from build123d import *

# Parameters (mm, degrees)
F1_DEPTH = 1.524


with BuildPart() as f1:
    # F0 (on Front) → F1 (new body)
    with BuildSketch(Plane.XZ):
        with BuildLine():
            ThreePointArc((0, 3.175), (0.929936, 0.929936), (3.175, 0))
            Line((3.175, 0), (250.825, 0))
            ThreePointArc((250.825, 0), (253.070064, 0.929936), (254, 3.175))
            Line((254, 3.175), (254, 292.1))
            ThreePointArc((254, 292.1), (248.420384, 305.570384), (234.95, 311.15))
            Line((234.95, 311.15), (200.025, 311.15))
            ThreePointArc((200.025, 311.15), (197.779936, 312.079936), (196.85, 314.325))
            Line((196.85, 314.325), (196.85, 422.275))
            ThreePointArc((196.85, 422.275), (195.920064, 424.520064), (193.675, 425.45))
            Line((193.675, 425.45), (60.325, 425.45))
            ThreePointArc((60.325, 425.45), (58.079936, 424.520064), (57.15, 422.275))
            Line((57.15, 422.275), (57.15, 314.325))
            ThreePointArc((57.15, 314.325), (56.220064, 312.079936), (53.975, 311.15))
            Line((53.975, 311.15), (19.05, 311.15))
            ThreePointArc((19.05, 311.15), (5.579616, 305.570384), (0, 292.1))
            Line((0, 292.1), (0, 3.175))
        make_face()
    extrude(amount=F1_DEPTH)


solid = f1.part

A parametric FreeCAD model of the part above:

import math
import FreeCAD as App
import Part
import Sketcher
from FreeCAD import Vector
Q = App.Units.Quantity

doc = App.newDocument("Part")
body = doc.addObject("PartDesign::Body", "Body")

# Sketch on XZ plane
sketch1 = doc.addObject("Sketcher::SketchObject", "Sketch")
body.addObject(sketch1)
sketch1.AttachmentSupport = (doc.XZ_Plane, [""])
sketch1.MapMode = "FlatFace"
sketch1.addGeometry([
    Part.ArcOfCircle(Part.Circle(Vector(3.2, 3.2, 0), Vector(0, 0, 1), 3.2), math.radians(-180), math.radians(-90)),  # 0
    Part.LineSegment(Vector(3.2, 0, 0), Vector(250.8, 0, 0)),  # 1
    Part.ArcOfCircle(Part.Circle(Vector(250.8, 3.2, 0), Vector(0, 0, 1), 3.2), math.radians(-90), math.radians(0)),  # 2
    Part.LineSegment(Vector(254, 3.2, 0), Vector(254, 292.1, 0)),  # 3
    Part.ArcOfCircle(Part.Circle(Vector(234.9, 292.1, 0), Vector(0, 0, 1), 19.1), math.radians(0), math.radians(90)),  # 4
    Part.LineSegment(Vector(234.9, 311.1, 0), Vector(200, 311.1, 0)),  # 5
    Part.ArcOfCircle(Part.Circle(Vector(200, 314.3, 0), Vector(0, 0, 1), 3.2), math.radians(-180), math.radians(-90)),  # 6
    Part.LineSegment(Vector(196.8, 314.3, 0), Vector(196.8, 422.3, 0)),  # 7
    Part.ArcOfCircle(Part.Circle(Vector(193.7, 422.3, 0), Vector(0, 0, 1), 3.2), math.radians(0), math.radians(90)),  # 8
    Part.LineSegment(Vector(193.7, 425.4, 0), Vector(60.3, 425.4, 0)),  # 9
    Part.ArcOfCircle(Part.Circle(Vector(60.3, 422.3, 0), Vector(0, 0, 1), 3.2), math.radians(90), math.radians(180)),  # 10
    Part.LineSegment(Vector(57.1, 422.3, 0), Vector(57.1, 314.3, 0)),  # 11
    Part.ArcOfCircle(Part.Circle(Vector(54, 314.3, 0), Vector(0, 0, 1), 3.2), math.radians(-90), math.radians(0)),  # 12
    Part.LineSegment(Vector(54, 311.1, 0), Vector(19.1, 311.1, 0)),  # 13
    Part.ArcOfCircle(Part.Circle(Vector(19.1, 292.1, 0), Vector(0, 0, 1), 19.1), math.radians(90), math.radians(180)),  # 14
    Part.LineSegment(Vector(0, 292.1, 0), Vector(0, 3.2, 0)),  # 15
], False)
sketch1.addConstraint([
    Sketcher.Constraint("Tangent", 0, 2, 1, 1),
    Sketcher.Constraint("Tangent", 1, 2, 2, 1),
    Sketcher.Constraint("Tangent", 2, 2, 3, 1),
    Sketcher.Constraint("Tangent", 3, 2, 4, 1),
    Sketcher.Constraint("Tangent", 4, 2, 5, 1),
    Sketcher.Constraint("Tangent", 5, 2, 6, 2),
    Sketcher.Constraint("Tangent", 6, 1, 7, 1),
    Sketcher.Constraint("Tangent", 7, 2, 8, 1),
    Sketcher.Constraint("Tangent", 8, 2, 9, 1),
    Sketcher.Constraint("Tangent", 9, 2, 10, 1),
    Sketcher.Constraint("Tangent", 10, 2, 11, 1),
    Sketcher.Constraint("Tangent", 11, 2, 12, 2),
    Sketcher.Constraint("Tangent", 12, 1, 13, 1),
    Sketcher.Constraint("Tangent", 13, 2, 14, 1),
    Sketcher.Constraint("Tangent", 14, 2, 15, 1),
    Sketcher.Constraint("Tangent", 15, 2, 0, 1),
    Sketcher.Constraint("Horizontal", 1),
    Sketcher.Constraint("Vertical", 3),
    Sketcher.Constraint("Horizontal", 5),
    Sketcher.Constraint("Vertical", 7),
    Sketcher.Constraint("Horizontal", 9),
    Sketcher.Constraint("Vertical", 11),
    Sketcher.Constraint("Horizontal", 13),
    Sketcher.Constraint("Vertical", 15),
    Sketcher.Constraint("Equal", 0, 2),
    Sketcher.Constraint("Equal", 2, 6),
    Sketcher.Constraint("Equal", 6, 8),
    Sketcher.Constraint("Equal", 8, 10),
    Sketcher.Constraint("Equal", 10, 12),
    Sketcher.Constraint("Equal", 4, 14),
    Sketcher.Constraint("PointOnObject", 0, 2, -1),
    Sketcher.Constraint("PointOnObject", 14, 2, -2),
    Sketcher.Constraint("Horizontal", 6, 3, 12, 3),
    Sketcher.Constraint("Equal", 5, 13),
    Sketcher.Constraint("Radius", 4, Q("0.75 in")),
    Sketcher.Constraint("DistanceX", -1, 1, 2, 2, Q("10 in")),
    Sketcher.Constraint("Radius", 0, Q("0.125 in")),
    Sketcher.Constraint("DistanceX", 6, 3, 2, 3, Q("2 in")),
    Sketcher.Constraint("DistanceY", 7, 1, 7, 2, Q("4.25 in")),
    Sketcher.Constraint("DistanceY", -1, 1, 4, 3, Q("11.5 in")),
])
pad1 = doc.addObject("PartDesign::Pad", "Pad")
body.addObject(pad1)
pad1.Profile = sketch1
pad1.Length = Q("0.06 in")

doc.recompute()
